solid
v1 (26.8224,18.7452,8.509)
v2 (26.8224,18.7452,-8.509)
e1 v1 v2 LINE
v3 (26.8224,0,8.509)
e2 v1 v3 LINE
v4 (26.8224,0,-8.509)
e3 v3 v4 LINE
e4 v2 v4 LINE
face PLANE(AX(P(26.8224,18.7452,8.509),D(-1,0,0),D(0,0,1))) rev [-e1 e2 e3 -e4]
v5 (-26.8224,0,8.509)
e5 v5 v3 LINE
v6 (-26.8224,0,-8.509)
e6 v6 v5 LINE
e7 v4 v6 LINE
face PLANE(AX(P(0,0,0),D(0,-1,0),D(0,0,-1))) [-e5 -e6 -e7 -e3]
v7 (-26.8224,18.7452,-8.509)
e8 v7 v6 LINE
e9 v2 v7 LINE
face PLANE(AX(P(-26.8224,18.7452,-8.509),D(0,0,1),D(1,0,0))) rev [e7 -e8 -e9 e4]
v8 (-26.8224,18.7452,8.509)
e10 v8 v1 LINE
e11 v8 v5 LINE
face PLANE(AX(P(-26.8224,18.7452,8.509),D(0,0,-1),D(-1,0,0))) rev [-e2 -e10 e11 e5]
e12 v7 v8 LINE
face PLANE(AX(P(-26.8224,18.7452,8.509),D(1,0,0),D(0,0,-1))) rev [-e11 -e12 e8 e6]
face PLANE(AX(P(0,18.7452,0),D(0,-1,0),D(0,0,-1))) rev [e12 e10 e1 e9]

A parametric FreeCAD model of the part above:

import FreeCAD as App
import Part
import Sketcher

V = App.Vector
Q = App.Units.Quantity

doc = App.newDocument("Part")
body = doc.addObject("PartDesign::Body", "Body")

# Sketch on XZ plane
sketch1 = body.newObject("Sketcher::SketchObject", "Sketch")
sketch1.AttachmentSupport = (doc.getObject("XZ_Plane"), [""])
sketch1.MapMode = "FlatFace"
sketch1.addGeometry([
    Part.LineSegment(V(-27, -9, 0), V(-27, 9, 0)),
    Part.LineSegment(V(-27, 9, 0), V(27, 9, 0)),
    Part.LineSegment(V(27, 9, 0), V(27, -9, 0)),
    Part.LineSegment(V(27, -9, 0), V(-27, -9, 0)),
], False)
sketch1.addConstraint([
    Sketcher.Constraint("Coincident", 0, 2, 1, 1),
    Sketcher.Constraint("Coincident", 1, 2, 2, 1),
    Sketcher.Constraint("Coincident", 2, 2, 3, 1),
    Sketcher.Constraint("Coincident", 3, 2, 0, 1),
    Sketcher.Constraint("Vertical", 0),
    Sketcher.Constraint("Horizontal", 1),
    Sketcher.Constraint("Vertical", 2),
    Sketcher.Constraint("Horizontal", 3),
    Sketcher.Constraint("Symmetric", 0, 2, 2, 2, -1, 1),
    Sketcher.Constraint("DistanceY", 0, 1, 0, 2, Q("0.67 in")),
    Sketcher.Constraint("DistanceX", 1, 1, 1, 2, Q("2.112 in")),
])
pad1 = body.newObject("PartDesign::Pad", "Pad")
pad1.Profile = sketch1
pad1.Length = Q("0.738 in")
pad1.Reversed = True

doc.recompute()
